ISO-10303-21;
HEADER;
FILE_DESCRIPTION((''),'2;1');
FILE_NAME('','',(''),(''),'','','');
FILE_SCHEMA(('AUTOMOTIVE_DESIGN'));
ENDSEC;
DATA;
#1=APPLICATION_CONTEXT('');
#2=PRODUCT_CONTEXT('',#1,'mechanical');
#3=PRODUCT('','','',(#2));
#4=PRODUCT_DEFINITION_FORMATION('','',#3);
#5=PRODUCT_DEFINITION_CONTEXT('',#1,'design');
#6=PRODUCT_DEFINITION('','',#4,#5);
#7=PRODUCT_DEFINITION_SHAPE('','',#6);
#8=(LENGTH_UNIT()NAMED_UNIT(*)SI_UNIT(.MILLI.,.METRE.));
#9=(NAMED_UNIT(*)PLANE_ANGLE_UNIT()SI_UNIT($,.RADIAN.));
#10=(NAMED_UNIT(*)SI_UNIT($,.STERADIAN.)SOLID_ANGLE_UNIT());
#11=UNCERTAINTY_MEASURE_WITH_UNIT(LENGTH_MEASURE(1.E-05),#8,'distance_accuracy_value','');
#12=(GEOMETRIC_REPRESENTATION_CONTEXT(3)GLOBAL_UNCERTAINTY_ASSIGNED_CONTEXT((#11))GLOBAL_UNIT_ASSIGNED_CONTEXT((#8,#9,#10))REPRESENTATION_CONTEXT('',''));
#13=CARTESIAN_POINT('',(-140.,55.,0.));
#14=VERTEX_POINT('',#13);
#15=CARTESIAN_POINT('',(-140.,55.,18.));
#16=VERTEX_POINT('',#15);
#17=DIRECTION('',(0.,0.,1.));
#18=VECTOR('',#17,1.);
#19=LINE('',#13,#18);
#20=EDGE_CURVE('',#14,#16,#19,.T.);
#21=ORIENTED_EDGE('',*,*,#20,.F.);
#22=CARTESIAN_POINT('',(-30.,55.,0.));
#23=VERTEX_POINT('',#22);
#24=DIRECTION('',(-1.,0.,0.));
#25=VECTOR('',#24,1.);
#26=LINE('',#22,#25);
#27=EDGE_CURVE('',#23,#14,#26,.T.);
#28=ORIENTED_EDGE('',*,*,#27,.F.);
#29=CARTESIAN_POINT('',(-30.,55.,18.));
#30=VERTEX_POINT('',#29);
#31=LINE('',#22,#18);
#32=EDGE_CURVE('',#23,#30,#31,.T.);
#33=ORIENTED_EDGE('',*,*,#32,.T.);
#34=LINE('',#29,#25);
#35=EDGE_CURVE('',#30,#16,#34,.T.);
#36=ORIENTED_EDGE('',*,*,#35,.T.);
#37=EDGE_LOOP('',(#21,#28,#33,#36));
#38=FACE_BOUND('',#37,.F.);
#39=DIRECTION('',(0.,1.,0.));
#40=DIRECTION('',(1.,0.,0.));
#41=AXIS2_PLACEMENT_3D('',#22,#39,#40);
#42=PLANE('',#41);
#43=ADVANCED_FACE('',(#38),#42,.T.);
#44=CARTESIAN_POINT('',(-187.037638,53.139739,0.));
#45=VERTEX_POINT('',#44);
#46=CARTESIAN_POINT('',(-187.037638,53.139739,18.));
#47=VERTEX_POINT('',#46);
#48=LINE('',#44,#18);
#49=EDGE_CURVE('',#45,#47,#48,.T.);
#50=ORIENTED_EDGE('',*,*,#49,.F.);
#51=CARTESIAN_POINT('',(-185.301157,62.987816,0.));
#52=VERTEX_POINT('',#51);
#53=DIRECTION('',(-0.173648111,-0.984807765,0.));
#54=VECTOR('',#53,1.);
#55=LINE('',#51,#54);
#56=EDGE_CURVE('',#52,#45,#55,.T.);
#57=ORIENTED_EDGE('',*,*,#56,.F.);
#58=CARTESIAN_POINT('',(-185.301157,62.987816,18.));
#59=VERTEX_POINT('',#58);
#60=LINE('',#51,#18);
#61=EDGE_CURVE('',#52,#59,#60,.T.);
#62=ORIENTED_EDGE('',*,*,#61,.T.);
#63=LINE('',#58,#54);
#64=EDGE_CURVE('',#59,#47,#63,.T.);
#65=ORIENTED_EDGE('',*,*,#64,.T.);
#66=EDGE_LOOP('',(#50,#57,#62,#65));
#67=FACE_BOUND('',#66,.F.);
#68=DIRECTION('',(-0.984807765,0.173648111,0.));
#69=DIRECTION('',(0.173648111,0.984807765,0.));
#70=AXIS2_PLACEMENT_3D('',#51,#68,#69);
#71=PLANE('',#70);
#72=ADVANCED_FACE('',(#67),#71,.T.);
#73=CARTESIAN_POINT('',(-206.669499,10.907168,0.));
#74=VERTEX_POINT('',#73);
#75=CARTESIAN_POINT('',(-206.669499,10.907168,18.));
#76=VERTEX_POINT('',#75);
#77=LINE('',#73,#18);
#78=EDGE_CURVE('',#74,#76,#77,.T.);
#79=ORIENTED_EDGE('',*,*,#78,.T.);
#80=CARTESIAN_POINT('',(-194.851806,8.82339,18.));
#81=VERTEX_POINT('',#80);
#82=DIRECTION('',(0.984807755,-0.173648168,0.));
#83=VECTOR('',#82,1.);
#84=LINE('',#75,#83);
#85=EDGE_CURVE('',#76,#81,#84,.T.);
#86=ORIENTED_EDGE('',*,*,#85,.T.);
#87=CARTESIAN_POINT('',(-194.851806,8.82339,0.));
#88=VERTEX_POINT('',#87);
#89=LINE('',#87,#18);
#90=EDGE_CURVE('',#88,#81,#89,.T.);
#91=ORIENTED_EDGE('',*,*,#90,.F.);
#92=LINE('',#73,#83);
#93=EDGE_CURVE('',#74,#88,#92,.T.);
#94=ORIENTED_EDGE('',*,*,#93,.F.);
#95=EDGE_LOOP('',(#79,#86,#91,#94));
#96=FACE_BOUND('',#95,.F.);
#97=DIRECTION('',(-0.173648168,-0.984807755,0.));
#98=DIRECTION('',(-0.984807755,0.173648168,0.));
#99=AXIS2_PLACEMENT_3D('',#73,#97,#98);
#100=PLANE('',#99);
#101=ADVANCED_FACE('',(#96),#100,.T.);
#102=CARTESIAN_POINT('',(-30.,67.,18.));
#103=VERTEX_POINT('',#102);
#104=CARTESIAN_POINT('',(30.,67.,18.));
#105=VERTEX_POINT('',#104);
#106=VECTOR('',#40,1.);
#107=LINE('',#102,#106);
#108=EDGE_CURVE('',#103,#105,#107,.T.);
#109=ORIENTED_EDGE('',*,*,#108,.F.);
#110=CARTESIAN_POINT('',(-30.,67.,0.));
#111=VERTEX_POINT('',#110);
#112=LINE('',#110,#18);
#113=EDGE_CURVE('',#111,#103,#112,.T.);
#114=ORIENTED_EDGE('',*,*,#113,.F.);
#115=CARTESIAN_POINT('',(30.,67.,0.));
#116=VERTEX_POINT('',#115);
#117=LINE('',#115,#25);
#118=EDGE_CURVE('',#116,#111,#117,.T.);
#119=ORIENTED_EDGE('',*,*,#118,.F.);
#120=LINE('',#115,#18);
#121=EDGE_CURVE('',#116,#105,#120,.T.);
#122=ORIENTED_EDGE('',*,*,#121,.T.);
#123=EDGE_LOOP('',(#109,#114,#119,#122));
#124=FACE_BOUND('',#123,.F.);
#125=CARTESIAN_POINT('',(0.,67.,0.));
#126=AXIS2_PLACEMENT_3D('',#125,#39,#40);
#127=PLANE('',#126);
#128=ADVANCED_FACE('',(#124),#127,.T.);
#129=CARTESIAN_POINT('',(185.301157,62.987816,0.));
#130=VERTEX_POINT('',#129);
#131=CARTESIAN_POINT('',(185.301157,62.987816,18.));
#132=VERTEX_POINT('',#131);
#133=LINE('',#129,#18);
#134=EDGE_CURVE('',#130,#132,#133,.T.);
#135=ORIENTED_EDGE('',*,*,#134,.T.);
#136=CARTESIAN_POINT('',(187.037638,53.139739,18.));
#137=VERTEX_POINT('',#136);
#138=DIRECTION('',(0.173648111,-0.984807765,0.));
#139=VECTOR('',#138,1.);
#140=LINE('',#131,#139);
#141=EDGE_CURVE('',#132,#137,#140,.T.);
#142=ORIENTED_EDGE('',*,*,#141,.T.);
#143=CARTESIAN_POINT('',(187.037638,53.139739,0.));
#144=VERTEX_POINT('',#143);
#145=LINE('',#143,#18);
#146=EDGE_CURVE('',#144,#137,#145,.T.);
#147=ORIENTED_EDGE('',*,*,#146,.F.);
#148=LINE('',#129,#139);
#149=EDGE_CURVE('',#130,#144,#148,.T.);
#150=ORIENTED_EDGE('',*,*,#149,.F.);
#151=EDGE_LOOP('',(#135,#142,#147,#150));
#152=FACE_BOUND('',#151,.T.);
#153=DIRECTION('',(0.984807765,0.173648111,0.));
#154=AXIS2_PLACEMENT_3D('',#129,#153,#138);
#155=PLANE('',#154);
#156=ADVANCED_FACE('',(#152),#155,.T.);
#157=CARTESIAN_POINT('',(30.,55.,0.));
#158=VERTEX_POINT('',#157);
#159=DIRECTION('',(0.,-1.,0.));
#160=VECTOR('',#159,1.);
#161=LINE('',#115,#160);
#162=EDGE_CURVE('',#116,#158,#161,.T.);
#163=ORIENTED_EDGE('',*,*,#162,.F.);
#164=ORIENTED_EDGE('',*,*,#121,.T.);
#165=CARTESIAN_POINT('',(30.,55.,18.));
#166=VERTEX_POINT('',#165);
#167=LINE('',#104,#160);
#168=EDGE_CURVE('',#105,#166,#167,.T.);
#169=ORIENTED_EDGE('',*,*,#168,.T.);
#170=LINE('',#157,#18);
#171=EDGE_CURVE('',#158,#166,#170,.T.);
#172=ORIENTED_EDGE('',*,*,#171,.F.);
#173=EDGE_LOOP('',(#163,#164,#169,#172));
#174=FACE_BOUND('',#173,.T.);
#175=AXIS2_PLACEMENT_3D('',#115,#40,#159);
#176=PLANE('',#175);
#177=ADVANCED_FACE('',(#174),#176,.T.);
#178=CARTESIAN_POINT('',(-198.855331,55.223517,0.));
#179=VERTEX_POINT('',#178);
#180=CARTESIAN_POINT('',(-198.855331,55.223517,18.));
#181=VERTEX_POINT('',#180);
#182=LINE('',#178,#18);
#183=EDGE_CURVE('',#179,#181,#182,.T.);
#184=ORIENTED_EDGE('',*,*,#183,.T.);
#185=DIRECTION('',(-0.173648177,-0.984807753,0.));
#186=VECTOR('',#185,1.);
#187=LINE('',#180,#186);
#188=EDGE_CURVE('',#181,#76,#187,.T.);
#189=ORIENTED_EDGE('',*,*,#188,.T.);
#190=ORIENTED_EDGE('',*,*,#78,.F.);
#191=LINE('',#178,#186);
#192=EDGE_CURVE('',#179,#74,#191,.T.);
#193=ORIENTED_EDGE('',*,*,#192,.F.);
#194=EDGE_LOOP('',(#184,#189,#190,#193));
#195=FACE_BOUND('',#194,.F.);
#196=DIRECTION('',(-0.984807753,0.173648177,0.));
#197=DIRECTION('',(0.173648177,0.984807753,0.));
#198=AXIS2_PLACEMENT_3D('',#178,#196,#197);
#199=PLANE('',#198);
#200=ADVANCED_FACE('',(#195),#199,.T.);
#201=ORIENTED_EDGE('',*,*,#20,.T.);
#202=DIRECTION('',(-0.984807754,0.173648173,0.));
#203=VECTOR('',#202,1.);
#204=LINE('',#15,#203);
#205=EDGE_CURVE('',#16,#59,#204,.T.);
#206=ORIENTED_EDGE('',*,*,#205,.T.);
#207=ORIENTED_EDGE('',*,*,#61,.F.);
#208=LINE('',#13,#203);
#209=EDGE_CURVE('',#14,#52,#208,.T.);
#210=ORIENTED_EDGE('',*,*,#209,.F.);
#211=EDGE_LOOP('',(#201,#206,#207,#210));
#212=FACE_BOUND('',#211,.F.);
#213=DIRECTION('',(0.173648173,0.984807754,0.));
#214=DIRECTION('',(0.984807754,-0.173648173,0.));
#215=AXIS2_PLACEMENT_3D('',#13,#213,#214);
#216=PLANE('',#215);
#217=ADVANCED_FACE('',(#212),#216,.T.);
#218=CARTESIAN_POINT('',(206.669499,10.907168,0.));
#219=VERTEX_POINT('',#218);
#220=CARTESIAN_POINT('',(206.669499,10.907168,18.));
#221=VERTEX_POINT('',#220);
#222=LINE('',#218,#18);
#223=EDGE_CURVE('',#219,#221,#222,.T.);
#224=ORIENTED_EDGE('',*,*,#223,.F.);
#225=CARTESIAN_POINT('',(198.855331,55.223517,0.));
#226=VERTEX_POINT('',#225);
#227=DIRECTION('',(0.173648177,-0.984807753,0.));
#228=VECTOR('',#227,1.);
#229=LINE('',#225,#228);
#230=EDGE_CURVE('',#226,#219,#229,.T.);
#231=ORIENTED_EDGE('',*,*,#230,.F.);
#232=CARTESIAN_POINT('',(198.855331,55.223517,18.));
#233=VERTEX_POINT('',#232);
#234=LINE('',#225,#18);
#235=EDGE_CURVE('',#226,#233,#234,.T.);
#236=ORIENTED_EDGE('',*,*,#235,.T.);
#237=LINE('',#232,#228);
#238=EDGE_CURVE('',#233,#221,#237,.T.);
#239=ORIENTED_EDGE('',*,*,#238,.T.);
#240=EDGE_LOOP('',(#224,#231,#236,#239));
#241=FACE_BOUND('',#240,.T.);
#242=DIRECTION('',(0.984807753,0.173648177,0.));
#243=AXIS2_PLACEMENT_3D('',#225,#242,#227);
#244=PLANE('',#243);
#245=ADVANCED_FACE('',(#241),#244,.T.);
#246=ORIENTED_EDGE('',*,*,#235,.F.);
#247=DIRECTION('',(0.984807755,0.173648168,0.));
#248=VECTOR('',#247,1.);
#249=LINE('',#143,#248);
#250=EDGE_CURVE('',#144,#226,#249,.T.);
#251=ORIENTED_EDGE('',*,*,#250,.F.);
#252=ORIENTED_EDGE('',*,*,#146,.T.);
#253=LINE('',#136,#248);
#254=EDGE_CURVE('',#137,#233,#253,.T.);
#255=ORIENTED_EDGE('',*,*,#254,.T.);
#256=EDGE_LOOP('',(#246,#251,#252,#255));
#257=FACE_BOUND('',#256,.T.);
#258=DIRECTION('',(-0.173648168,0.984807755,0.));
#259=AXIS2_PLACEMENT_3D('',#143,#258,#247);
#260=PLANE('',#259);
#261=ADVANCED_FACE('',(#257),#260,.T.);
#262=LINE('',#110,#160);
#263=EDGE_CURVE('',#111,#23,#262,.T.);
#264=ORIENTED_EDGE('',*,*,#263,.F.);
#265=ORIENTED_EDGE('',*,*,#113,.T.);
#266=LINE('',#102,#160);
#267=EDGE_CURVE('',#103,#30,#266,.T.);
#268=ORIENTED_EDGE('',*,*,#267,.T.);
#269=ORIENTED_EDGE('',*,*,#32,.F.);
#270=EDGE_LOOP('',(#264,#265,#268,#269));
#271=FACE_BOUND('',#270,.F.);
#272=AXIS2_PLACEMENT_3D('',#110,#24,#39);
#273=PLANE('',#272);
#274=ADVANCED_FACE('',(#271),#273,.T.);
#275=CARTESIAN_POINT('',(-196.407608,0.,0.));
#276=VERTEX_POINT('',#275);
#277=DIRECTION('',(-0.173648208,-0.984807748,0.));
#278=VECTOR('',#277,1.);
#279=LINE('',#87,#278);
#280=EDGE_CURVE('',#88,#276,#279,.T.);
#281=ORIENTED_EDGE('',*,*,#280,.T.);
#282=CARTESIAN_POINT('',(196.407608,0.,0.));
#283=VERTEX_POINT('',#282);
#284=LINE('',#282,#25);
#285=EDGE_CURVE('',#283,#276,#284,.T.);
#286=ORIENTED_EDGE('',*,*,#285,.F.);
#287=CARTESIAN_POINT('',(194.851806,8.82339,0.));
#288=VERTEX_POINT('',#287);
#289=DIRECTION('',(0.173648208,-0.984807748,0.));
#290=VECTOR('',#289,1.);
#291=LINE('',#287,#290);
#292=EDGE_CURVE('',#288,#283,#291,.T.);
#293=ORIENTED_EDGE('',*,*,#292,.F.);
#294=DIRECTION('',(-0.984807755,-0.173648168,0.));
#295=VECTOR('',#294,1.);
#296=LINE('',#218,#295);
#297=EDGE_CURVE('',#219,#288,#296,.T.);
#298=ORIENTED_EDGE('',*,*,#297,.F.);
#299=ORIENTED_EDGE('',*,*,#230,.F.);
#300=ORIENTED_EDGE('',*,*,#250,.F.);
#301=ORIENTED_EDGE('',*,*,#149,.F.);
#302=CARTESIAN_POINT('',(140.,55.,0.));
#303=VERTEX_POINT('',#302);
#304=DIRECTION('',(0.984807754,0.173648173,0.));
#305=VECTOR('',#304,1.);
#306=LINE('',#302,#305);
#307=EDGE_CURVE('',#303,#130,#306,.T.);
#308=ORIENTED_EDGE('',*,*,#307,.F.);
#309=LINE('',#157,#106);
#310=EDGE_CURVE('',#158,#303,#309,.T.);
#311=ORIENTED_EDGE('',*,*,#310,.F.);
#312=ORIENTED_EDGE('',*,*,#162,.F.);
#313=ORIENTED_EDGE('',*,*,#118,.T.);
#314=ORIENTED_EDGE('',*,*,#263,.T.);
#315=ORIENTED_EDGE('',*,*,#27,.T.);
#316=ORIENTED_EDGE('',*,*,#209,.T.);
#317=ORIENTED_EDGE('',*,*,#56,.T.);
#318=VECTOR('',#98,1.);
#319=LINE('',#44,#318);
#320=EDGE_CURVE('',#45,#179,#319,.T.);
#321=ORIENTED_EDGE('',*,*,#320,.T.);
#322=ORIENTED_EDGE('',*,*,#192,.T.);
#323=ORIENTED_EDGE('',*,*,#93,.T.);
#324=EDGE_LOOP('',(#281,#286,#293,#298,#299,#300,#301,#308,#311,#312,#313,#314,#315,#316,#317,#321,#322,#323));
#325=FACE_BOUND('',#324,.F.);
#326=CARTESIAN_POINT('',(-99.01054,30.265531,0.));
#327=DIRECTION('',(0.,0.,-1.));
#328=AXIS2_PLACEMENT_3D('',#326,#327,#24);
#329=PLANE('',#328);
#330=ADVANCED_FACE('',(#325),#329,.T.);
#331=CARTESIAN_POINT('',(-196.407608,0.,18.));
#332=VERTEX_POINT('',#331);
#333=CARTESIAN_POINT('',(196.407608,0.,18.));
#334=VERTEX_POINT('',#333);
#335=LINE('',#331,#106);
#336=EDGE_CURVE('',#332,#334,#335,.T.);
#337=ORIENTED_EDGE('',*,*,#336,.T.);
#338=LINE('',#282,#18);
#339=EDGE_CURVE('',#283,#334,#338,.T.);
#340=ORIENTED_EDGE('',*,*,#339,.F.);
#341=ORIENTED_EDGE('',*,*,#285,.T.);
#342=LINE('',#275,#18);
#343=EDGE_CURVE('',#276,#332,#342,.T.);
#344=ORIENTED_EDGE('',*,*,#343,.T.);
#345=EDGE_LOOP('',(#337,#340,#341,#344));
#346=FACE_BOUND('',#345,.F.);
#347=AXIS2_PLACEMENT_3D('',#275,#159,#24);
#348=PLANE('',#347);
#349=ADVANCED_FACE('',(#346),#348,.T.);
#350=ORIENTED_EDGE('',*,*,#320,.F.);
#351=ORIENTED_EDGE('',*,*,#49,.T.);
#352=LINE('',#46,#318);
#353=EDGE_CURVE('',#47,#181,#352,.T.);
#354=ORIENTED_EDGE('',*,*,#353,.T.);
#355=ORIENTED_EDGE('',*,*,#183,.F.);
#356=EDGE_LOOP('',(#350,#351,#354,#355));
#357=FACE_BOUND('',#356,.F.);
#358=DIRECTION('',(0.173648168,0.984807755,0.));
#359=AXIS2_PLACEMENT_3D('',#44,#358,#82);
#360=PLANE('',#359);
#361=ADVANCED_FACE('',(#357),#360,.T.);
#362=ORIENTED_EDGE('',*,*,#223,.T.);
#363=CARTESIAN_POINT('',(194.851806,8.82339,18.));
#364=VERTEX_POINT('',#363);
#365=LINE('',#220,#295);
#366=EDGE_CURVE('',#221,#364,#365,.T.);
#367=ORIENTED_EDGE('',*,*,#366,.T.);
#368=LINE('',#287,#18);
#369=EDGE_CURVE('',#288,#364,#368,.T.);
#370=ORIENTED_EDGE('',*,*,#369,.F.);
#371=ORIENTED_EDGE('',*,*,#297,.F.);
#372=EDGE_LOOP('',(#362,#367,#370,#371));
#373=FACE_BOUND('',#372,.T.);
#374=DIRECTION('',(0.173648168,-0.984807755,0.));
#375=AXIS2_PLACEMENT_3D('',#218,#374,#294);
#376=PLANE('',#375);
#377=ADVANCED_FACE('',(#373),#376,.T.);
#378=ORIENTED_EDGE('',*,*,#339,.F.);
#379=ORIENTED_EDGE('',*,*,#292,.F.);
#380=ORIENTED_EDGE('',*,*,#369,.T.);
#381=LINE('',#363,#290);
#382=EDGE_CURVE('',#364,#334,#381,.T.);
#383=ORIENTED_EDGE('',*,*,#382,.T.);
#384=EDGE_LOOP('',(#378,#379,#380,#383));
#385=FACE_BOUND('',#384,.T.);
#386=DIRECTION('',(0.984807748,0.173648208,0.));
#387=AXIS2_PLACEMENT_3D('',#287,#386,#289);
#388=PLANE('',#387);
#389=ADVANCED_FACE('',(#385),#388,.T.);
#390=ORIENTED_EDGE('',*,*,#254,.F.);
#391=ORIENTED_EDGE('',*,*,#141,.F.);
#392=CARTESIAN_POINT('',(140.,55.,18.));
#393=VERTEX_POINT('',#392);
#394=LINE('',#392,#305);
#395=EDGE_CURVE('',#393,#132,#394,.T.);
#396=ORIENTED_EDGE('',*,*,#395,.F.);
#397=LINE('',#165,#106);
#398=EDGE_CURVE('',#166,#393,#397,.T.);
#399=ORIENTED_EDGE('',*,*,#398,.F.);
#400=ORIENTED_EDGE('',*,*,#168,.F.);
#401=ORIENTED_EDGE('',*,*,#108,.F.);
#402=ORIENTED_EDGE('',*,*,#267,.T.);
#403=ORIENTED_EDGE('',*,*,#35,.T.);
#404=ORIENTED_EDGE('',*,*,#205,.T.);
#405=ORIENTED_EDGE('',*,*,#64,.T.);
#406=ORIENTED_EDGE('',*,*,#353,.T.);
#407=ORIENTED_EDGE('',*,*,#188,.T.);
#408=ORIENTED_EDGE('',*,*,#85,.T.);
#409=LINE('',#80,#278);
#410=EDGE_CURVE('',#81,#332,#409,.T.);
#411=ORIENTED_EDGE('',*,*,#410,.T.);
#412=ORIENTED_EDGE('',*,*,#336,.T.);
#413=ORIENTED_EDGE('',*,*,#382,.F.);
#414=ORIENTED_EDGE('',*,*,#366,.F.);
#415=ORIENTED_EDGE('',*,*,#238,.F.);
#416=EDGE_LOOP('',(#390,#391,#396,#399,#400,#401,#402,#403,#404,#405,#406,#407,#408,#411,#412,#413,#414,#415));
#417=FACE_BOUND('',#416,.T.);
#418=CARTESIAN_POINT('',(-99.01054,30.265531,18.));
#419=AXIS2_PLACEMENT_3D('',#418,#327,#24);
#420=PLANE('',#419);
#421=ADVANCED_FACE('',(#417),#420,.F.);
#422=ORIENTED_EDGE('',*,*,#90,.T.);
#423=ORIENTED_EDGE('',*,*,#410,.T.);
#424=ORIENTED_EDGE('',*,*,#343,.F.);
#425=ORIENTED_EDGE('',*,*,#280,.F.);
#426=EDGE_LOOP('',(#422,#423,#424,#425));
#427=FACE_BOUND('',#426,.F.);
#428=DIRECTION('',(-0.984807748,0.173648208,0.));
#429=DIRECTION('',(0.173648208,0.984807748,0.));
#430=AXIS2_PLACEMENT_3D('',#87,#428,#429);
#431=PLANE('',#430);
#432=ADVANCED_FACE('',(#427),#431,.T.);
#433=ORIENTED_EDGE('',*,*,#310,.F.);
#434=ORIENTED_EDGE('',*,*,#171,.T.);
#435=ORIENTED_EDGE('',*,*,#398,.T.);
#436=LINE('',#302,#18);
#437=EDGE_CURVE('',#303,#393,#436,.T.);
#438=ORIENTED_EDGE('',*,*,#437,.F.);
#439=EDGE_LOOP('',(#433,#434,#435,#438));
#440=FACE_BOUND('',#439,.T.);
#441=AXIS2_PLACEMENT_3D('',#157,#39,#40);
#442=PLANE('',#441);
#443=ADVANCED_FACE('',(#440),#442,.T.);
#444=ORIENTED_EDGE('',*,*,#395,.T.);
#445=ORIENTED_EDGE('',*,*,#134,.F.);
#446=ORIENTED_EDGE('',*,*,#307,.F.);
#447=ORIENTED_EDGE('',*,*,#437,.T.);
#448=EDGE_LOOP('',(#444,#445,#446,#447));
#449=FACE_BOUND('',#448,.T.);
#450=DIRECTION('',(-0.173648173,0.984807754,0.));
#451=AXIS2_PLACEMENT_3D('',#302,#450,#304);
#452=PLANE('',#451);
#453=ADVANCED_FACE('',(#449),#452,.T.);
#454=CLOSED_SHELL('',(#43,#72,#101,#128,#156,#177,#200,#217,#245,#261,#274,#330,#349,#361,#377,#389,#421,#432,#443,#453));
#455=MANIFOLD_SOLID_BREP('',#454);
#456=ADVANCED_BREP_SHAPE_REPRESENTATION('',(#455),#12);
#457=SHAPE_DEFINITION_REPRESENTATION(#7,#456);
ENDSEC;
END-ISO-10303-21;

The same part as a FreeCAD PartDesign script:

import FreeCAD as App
import Part
import Sketcher

V = App.Vector
Q = App.Units.Quantity

doc = App.newDocument("Part")
body = doc.addObject("PartDesign::Body", "Body")

# Sketch on XY plane
sketch1 = doc.addObject("Sketcher::SketchObject", "Sketch")
body.addObject(sketch1)
sketch1.AttachmentSupport = (doc.XY_Plane, [""])
sketch1.MapMode = "FlatFace"
sketch1.addGeometry(Part.LineSegment(V(30, 67, 0), V(0, 67, 0)), False)
sketch1.addGeometry(Part.LineSegment(V(0, 67, 0), V(0, 0, 0)), False)
sketch1.addGeometry(Part.LineSegment(V(0, 0, 0), V(196.407608, 0, 0)), False)
sketch1.addGeometry(Part.LineSegment(V(196.407608, 0, 0), V(194.851806, 8.82339, 0)), False)
sketch1.addGeometry(Part.LineSegment(V(194.851806, 8.82339, 0), V(206.669499, 10.907168, 0)), False)
sketch1.addGeometry(Part.LineSegment(V(206.669499, 10.907168, 0), V(198.855331, 55.223517, 0)), False)
sketch1.addGeometry(Part.LineSegment(V(198.855331, 55.223517, 0), V(187.037638, 53.139739, 0)), False)
sketch1.addGeometry(Part.LineSegment(V(187.037638, 53.139739, 0), V(185.301157, 62.987816, 0)), False)
sketch1.addGeometry(Part.LineSegment(V(185.301157, 62.987816, 0), V(140, 55, 0)), False)
sketch1.addGeometry(Part.LineSegment(V(140, 55, 0), V(30, 55, 0)), False)
sketch1.addGeometry(Part.LineSegment(V(30, 55, 0), V(30, 67, 0)), False)
sketch1.addConstraint(Sketcher.Constraint("Coincident", 0, 2, 1, 1))
sketch1.addConstraint(Sketcher.Constraint("Coincident", 1, 2, 2, 1))
sketch1.addConstraint(Sketcher.Constraint("Coincident", 2, 2, 3, 1))
sketch1.addConstraint(Sketcher.Constraint("Coincident", 3, 2, 4, 1))
sketch1.addConstraint(Sketcher.Constraint("Coincident", 4, 2, 5, 1))
sketch1.addConstraint(Sketcher.Constraint("Coincident", 5, 2, 6, 1))
sketch1.addConstraint(Sketcher.Constraint("Coincident", 6, 2, 7, 1))
sketch1.addConstraint(Sketcher.Constraint("Coincident", 7, 2, 8, 1))
sketch1.addConstraint(Sketcher.Constraint("Coincident", 8, 2, 9, 1))
sketch1.addConstraint(Sketcher.Constraint("Coincident", 9, 2, 10, 1))
sketch1.addConstraint(Sketcher.Constraint("Coincident", 10, 2, 0, 1))
sketch1.addConstraint(Sketcher.Constraint("Horizontal", 0))
sketch1.addConstraint(Sketcher.Constraint("Vertical", 1))
sketch1.addConstraint(Sketcher.Constraint("Horizontal", 2))
sketch1.addConstraint(Sketcher.Constraint("Horizontal", 9))
sketch1.addConstraint(Sketcher.Constraint("Vertical", 10))
sketch1.addConstraint(Sketcher.Constraint("Coincident", 1, 2, -1, 1))
sketch1.addConstraint(Sketcher.Constraint("Perpendicular", 3, 4))
sketch1.addConstraint(Sketcher.Constraint("Perpendicular", 4, 5))
sketch1.addConstraint(Sketcher.Constraint("Perpendicular", 5, 6))
sketch1.addConstraint(Sketcher.Constraint("Perpendicular", 6, 7))
sketch1.addConstraint(Sketcher.Constraint("Perpendicular", 7, 8))
sketch1.addConstraint(Sketcher.Constraint("Equal", 4, 6))
sketch1.addConstraint(Sketcher.Constraint("DistanceX", 0, 2, 0, 1, 30.0))
sketch1.addConstraint(Sketcher.Constraint("DistanceX", 9, 2, 9, 1, 110.0))
sketch1.addConstraint(Sketcher.Constraint("DistanceY", 1, 2, 1, 1, 67.0))
sketch1.addConstraint(Sketcher.Constraint("DistanceY", 10, 1, 10, 2, 12.0))
sketch1.addConstraint(Sketcher.Constraint("Angle", 3, Q("100.000002 deg")))
sketch1.addConstraint(Sketcher.Constraint("Distance", 4, 12.0))
sketch1.addConstraint(Sketcher.Constraint("Distance", 5, 45.0))
sketch1.addConstraint(Sketcher.Constraint("Distance", 7, 9.999999))
sketch1.addConstraint(Sketcher.Constraint("Distance", 8, 46.0))
pad1 = doc.addObject("PartDesign::Pad", "Pad")
body.addObject(pad1)
pad1.Profile = sketch1
pad1.Length = 18
doc.recompute()

mirrored = doc.addObject("PartDesign::Mirrored", "Mirrored")
body.addObject(mirrored)
mirrored.Originals = [pad1]
mirrored.MirrorPlane = (doc.YZ_Plane, [""])
body.Tip = mirrored

doc.recompute()
